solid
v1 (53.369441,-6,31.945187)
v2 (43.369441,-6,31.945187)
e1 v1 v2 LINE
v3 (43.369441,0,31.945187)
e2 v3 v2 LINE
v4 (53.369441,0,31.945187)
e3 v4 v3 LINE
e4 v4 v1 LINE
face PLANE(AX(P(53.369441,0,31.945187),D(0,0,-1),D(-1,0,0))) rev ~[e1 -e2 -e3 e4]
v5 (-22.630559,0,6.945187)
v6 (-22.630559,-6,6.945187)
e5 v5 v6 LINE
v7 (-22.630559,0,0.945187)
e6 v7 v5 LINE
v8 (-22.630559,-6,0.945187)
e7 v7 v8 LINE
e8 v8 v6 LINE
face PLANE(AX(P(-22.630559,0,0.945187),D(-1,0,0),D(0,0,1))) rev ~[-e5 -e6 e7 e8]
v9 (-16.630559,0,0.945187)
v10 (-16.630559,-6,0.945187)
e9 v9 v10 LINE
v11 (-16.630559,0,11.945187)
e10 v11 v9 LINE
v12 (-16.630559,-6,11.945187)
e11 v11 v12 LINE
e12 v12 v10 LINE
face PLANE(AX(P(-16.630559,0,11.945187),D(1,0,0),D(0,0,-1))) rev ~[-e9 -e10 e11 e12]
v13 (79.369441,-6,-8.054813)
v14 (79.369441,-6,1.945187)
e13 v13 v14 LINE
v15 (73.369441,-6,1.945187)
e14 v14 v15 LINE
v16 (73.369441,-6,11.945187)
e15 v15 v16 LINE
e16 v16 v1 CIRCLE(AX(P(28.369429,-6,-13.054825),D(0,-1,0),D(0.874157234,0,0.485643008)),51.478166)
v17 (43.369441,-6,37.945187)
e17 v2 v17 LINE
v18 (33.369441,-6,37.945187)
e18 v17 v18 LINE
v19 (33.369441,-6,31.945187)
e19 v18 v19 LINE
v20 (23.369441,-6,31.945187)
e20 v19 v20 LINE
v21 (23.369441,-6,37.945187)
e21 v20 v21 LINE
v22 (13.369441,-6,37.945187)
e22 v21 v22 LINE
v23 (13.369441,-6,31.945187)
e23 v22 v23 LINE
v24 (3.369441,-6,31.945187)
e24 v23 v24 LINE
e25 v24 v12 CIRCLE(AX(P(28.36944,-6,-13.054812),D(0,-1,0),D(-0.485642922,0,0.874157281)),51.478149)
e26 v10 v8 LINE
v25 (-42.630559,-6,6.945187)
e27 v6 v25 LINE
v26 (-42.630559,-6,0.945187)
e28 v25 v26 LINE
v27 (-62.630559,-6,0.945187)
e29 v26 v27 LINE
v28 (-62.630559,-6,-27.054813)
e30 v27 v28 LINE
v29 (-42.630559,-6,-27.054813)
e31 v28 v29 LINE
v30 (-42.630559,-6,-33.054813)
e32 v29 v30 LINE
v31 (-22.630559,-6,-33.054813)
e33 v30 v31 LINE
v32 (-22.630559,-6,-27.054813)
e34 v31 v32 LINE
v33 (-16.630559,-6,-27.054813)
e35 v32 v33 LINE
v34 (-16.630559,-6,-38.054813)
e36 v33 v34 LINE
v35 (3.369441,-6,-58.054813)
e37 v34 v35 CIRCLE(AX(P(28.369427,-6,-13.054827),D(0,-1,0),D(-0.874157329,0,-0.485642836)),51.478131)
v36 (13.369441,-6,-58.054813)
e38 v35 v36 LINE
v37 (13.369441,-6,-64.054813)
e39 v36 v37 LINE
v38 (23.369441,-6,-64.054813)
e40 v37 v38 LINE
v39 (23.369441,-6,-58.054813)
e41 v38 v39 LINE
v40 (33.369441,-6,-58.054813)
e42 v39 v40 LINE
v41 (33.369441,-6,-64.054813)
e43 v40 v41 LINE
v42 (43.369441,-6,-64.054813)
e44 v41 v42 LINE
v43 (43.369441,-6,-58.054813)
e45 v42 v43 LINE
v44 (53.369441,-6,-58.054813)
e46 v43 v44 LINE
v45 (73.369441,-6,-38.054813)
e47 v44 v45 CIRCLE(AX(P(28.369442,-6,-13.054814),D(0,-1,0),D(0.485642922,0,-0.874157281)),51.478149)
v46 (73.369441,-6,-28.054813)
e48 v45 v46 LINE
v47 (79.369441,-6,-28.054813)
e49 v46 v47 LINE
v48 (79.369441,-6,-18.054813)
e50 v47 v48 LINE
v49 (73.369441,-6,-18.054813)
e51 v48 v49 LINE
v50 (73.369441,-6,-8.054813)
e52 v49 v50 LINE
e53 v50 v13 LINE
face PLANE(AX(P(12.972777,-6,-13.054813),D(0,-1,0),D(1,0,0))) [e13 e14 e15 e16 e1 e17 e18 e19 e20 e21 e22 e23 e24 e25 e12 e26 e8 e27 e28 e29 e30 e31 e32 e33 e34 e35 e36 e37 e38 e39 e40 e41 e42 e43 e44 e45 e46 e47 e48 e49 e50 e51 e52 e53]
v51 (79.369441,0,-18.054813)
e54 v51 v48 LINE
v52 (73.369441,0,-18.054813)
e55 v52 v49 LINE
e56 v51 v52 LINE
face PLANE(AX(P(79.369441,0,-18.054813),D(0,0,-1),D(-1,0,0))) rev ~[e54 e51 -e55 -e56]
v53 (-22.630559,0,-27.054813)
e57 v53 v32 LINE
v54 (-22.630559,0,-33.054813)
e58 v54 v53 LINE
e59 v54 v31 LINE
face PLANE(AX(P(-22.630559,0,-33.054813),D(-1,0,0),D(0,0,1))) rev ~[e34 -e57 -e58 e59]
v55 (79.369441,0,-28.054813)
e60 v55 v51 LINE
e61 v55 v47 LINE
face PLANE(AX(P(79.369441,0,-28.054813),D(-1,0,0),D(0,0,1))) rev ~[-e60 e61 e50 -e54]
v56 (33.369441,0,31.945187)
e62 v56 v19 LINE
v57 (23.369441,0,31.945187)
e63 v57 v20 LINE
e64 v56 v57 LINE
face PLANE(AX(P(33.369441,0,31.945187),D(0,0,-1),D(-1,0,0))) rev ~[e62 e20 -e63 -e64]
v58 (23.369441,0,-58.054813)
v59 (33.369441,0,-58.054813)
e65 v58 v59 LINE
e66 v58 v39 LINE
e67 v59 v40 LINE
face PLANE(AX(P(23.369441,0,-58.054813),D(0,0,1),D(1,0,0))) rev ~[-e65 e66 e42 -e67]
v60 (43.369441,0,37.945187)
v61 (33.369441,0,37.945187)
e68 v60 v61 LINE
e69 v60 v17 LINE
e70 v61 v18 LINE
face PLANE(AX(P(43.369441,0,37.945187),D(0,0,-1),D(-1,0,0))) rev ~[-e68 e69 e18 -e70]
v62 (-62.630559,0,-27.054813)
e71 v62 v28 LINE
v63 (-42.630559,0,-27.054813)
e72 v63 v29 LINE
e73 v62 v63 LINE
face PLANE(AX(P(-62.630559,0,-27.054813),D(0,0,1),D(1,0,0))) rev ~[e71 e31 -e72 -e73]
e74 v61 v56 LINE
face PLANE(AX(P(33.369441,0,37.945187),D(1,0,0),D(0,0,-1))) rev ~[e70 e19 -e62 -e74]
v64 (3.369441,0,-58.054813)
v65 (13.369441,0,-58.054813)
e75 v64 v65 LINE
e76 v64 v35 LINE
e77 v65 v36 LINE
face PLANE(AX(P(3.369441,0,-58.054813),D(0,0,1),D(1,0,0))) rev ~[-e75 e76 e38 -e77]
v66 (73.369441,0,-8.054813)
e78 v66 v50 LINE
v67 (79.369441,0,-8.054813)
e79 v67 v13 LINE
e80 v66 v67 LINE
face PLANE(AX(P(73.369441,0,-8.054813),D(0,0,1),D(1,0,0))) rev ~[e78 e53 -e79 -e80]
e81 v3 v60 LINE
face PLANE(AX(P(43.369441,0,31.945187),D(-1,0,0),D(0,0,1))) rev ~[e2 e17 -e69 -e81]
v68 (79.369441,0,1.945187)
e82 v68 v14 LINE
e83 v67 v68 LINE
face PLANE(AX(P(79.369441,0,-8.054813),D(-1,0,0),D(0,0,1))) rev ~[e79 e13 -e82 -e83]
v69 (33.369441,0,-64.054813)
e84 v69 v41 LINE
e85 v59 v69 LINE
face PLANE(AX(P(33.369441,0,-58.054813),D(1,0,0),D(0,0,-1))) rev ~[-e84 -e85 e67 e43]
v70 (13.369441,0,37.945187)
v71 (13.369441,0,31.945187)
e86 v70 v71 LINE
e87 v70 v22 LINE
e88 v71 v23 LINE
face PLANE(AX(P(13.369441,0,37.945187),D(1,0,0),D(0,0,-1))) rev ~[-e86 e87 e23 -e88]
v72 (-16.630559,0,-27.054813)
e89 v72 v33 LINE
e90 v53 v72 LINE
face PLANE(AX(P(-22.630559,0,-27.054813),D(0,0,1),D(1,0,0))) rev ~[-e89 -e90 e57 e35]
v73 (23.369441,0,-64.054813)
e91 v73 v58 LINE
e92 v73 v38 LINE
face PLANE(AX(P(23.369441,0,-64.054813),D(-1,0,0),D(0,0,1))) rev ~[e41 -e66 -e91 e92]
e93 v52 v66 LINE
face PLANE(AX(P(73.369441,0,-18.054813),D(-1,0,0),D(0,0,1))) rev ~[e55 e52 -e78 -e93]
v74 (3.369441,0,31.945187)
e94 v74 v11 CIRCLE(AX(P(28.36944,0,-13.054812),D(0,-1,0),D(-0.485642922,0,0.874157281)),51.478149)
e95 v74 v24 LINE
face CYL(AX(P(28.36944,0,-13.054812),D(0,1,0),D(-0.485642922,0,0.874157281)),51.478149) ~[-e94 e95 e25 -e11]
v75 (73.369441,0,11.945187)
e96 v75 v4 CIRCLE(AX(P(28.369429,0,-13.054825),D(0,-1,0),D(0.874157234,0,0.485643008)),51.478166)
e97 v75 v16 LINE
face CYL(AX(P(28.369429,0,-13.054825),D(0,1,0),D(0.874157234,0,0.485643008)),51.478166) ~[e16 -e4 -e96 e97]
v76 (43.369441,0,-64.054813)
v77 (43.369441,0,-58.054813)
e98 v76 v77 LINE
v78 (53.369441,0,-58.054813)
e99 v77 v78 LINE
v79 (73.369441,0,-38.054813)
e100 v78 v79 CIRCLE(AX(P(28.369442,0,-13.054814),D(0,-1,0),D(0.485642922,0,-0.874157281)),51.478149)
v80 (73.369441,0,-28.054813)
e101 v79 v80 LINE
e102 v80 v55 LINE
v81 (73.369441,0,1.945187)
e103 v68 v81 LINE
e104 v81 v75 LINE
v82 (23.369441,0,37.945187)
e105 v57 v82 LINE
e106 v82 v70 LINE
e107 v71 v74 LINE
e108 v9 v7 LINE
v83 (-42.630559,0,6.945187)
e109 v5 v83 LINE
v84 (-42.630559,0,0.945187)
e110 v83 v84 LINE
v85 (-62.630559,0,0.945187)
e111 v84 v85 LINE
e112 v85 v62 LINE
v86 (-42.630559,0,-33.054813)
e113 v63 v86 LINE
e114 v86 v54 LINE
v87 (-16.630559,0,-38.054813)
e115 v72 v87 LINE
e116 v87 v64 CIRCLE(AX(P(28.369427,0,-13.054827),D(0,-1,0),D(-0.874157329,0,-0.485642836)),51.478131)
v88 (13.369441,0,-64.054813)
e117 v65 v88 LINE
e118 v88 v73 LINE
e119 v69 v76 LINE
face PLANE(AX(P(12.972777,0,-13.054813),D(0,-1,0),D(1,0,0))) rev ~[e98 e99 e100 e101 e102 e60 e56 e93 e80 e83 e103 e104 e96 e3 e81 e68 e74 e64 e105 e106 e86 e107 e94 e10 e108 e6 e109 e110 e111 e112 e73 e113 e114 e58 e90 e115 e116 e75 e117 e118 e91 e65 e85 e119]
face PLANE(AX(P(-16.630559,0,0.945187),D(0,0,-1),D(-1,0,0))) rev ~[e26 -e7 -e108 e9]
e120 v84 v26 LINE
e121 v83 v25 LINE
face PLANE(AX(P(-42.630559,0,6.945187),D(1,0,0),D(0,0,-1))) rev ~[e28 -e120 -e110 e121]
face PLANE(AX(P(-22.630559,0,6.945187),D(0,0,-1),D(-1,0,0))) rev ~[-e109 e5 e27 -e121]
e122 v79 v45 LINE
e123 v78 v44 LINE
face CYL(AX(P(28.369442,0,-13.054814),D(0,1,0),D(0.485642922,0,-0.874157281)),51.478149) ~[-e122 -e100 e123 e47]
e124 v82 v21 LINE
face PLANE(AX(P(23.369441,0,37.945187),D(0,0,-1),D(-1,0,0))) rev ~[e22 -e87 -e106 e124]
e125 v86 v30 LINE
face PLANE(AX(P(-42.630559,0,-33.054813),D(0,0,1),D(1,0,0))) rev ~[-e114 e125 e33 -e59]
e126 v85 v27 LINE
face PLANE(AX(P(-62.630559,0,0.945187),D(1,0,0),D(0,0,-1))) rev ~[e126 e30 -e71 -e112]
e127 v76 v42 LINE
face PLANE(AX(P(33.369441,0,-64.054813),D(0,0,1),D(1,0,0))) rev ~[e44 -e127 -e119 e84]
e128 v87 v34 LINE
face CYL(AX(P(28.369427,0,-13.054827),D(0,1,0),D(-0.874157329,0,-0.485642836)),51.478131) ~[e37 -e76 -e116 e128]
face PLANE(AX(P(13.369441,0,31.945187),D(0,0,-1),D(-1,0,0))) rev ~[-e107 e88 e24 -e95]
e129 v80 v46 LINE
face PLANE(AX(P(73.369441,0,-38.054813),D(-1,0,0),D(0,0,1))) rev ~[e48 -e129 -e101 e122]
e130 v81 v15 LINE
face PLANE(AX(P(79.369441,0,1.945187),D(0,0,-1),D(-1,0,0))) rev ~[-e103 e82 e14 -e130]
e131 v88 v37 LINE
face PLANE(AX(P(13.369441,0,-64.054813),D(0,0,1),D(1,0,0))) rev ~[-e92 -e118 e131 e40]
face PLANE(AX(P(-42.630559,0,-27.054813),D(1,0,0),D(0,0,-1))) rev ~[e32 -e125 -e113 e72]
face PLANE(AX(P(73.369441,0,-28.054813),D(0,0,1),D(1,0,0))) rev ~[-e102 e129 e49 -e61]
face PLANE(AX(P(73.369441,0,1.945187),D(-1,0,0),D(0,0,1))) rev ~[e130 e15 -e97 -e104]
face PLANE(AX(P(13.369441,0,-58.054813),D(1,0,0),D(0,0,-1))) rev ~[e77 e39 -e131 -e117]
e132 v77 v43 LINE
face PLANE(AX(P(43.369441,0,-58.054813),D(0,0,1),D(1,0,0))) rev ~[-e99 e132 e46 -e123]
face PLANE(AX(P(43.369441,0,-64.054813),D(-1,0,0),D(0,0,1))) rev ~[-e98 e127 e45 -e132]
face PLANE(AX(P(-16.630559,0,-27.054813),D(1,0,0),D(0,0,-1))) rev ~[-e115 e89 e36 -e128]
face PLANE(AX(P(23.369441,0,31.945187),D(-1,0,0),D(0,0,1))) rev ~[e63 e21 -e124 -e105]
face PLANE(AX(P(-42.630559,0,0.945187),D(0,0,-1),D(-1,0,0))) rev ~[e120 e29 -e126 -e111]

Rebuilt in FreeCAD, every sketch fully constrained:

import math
import FreeCAD as App
import Part
import Sketcher

V = App.Vector
Q = App.Units.Quantity

doc = App.newDocument("Part")
body = doc.addObject("PartDesign::Body", "Body")

sketch1 = body.newObject("Sketcher::SketchObject", "Sketch")
sketch1.AttachmentSupport = (doc.getObject("XZ_Plane"), [""])
sketch1.MapMode = "FlatFace"
sketch1.addGeometry(Part.LineSegment(V(43.369441, -58.054813, 0), V(53.369441, -58.054813, 0)), False)
sketch1.addGeometry(Part.ArcOfCircle(Part.Circle(V(28.369442, -13.054814, 0), V(0, 0, 1), 51.478149), math.radians(-60.945397), math.radians(-29.054603)), False)
sketch1.addGeometry(Part.LineSegment(V(73.369441, -38.054813, 0), V(73.369441, -28.054813, 0)), False)
sketch1.addGeometry(Part.LineSegment(V(73.369441, -28.054813, 0), V(79.369441, -28.054813, 0)), False)
sketch1.addGeometry(Part.LineSegment(V(79.369441, -28.054813, 0), V(79.369441, -18.054813, 0)), False)
sketch1.addGeometry(Part.LineSegment(V(79.369441, -18.054813, 0), V(73.369441, -18.054813, 0)), False)
sketch1.addGeometry(Part.LineSegment(V(73.369441, -18.054813, 0), V(73.369441, -8.054813, 0)), False)
sketch1.addGeometry(Part.LineSegment(V(73.369441, -8.054813, 0), V(79.369441, -8.054813, 0)), False)
sketch1.addGeometry(Part.LineSegment(V(79.369441, -8.054813, 0), V(79.369441, 1.945187, 0)), False)
sketch1.addGeometry(Part.LineSegment(V(79.369441, 1.945187, 0), V(73.369441, 1.945187, 0)), False)
sketch1.addGeometry(Part.LineSegment(V(73.369441, 1.945187, 0), V(73.369441, 11.945187, 0)), False)
sketch1.addGeometry(Part.ArcOfCircle(Part.Circle(V(28.369429, -13.054825, 0), V(0, 0, 1), 51.478166), math.radians(29.054609), math.radians(60.945391)), False)
sketch1.addGeometry(Part.LineSegment(V(53.369441, 31.945187, 0), V(43.369441, 31.945187, 0)), False)
sketch1.addGeometry(Part.LineSegment(V(43.369441, 31.945187, 0), V(43.369441, 37.945187, 0)), False)
sketch1.addGeometry(Part.LineSegment(V(43.369441, 37.945187, 0), V(33.369441, 37.945187, 0)), False)
sketch1.addGeometry(Part.LineSegment(V(33.369441, 37.945187, 0), V(33.369441, 31.945187, 0)), False)
sketch1.addGeometry(Part.LineSegment(V(33.369441, 31.945187, 0), V(23.369441, 31.945187, 0)), False)
sketch1.addGeometry(Part.LineSegment(V(23.369441, 31.945187, 0), V(23.369441, 37.945187, 0)), False)
sketch1.addGeometry(Part.LineSegment(V(23.369441, 37.945187, 0), V(13.369441, 37.945187, 0)), False)
sketch1.addGeometry(Part.LineSegment(V(13.369441, 37.945187, 0), V(13.369441, 31.945187, 0)), False)
sketch1.addGeometry(Part.LineSegment(V(13.369441, 31.945187, 0), V(3.369441, 31.945187, 0)), False)
sketch1.addGeometry(Part.ArcOfCircle(Part.Circle(V(28.36944, -13.054812, 0), V(0, 0, 1), 51.478149), math.radians(119.054603), math.radians(150.945397)), False)
sketch1.addGeometry(Part.LineSegment(V(-16.630559, 11.945187, 0), V(-16.630559, 0.945187, 0)), False)
sketch1.addGeometry(Part.LineSegment(V(-16.630559, 0.945187, 0), V(-22.630559, 0.945187, 0)), False)
sketch1.addGeometry(Part.LineSegment(V(-22.630559, 0.945187, 0), V(-22.630559, 6.945187, 0)), False)
sketch1.addGeometry(Part.LineSegment(V(-22.630559, 6.945187, 0), V(-42.630559, 6.945187, 0)), False)
sketch1.addGeometry(Part.LineSegment(V(-42.630559, 6.945187, 0), V(-42.630559, 0.945187, 0)), False)
sketch1.addGeometry(Part.LineSegment(V(-42.630559, 0.945187, 0), V(-62.630559, 0.945187, 0)), False)
sketch1.addGeometry(Part.LineSegment(V(-62.630559, 0.945187, 0), V(-62.630559, -27.054813, 0)), False)
sketch1.addGeometry(Part.LineSegment(V(-62.630559, -27.054813, 0), V(-42.630559, -27.054813, 0)), False)
sketch1.addGeometry(Part.LineSegment(V(-42.630559, -27.054813, 0), V(-42.630559, -33.054813, 0)), False)
sketch1.addGeometry(Part.LineSegment(V(-42.630559, -33.054813, 0), V(-22.630559, -33.054813, 0)), False)
sketch1.addGeometry(Part.LineSegment(V(-22.630559, -33.054813, 0), V(-22.630559, -27.054813, 0)), False)
sketch1.addGeometry(Part.LineSegment(V(-22.630559, -27.054813, 0), V(-16.630559, -27.054813, 0)), False)
sketch1.addGeometry(Part.LineSegment(V(-16.630559, -27.054813, 0), V(-16.630559, -38.054813, 0)), False)
sketch1.addGeometry(Part.ArcOfCircle(Part.Circle(V(28.369427, -13.054827, 0), V(0, 0, 1), 51.478131), math.radians(-150.945402), math.radians(-119.054598)), False)
sketch1.addGeometry(Part.LineSegment(V(3.369441, -58.054813, 0), V(13.369441, -58.054813, 0)), False)
sketch1.addGeometry(Part.LineSegment(V(13.369441, -58.054813, 0), V(13.369441, -64.054813, 0)), False)
sketch1.addGeometry(Part.LineSegment(V(13.369441, -64.054813, 0), V(23.369441, -64.054813, 0)), False)
sketch1.addGeometry(Part.LineSegment(V(23.369441, -64.054813, 0), V(23.369441, -58.054813, 0)), False)
sketch1.addGeometry(Part.LineSegment(V(23.369441, -58.054813, 0), V(33.369441, -58.054813, 0)), False)
sketch1.addGeometry(Part.LineSegment(V(33.369441, -58.054813, 0), V(33.369441, -64.054813, 0)), False)
sketch1.addGeometry(Part.LineSegment(V(33.369441, -64.054813, 0), V(43.369441, -64.054813, 0)), False)
sketch1.addGeometry(Part.LineSegment(V(43.369441, -64.054813, 0), V(43.369441, -58.054813, 0)), False)
sketch1.addConstraint(Sketcher.Constraint("Coincident", 0, 2, 1, 1))
sketch1.addConstraint(Sketcher.Constraint("Coincident", 1, 2, 2, 1))
sketch1.addConstraint(Sketcher.Constraint("Coincident", 2, 2, 3, 1))
sketch1.addConstraint(Sketcher.Constraint("Coincident", 3, 2, 4, 1))
sketch1.addConstraint(Sketcher.Constraint("Coincident", 4, 2, 5, 1))
sketch1.addConstraint(Sketcher.Constraint("Coincident", 5, 2, 6, 1))
sketch1.addConstraint(Sketcher.Constraint("Coincident", 6, 2, 7, 1))
sketch1.addConstraint(Sketcher.Constraint("Coincident", 7, 2, 8, 1))
sketch1.addConstraint(Sketcher.Constraint("Coincident", 8, 2, 9, 1))
sketch1.addConstraint(Sketcher.Constraint("Coincident", 9, 2, 10, 1))
sketch1.addConstraint(Sketcher.Constraint("Coincident", 10, 2, 11, 1))
sketch1.addConstraint(Sketcher.Constraint("Coincident", 11, 2, 12, 1))
sketch1.addConstraint(Sketcher.Constraint("Coincident", 12, 2, 13, 1))
sketch1.addConstraint(Sketcher.Constraint("Coincident", 13, 2, 14, 1))
sketch1.addConstraint(Sketcher.Constraint("Coincident", 14, 2, 15, 1))
sketch1.addConstraint(Sketcher.Constraint("Coincident", 15, 2, 16, 1))
sketch1.addConstraint(Sketcher.Constraint("Coincident", 16, 2, 17, 1))
sketch1.addConstraint(Sketcher.Constraint("Coincident", 17, 2, 18, 1))
sketch1.addConstraint(Sketcher.Constraint("Coincident", 18, 2, 19, 1))
sketch1.addConstraint(Sketcher.Constraint("Coincident", 19, 2, 20, 1))
sketch1.addConstraint(Sketcher.Constraint("Coincident", 20, 2, 21, 1))
sketch1.addConstraint(Sketcher.Constraint("Coincident", 21, 2, 22, 1))
sketch1.addConstraint(Sketcher.Constraint("Coincident", 22, 2, 23, 1))
sketch1.addConstraint(Sketcher.Constraint("Coincident", 23, 2, 24, 1))
sketch1.addConstraint(Sketcher.Constraint("Coincident", 24, 2, 25, 1))
sketch1.addConstraint(Sketcher.Constraint("Coincident", 25, 2, 26, 1))
sketch1.addConstraint(Sketcher.Constraint("Coincident", 26, 2, 27, 1))
sketch1.addConstraint(Sketcher.Constraint("Coincident", 27, 2, 28, 1))
sketch1.addConstraint(Sketcher.Constraint("Coincident", 28, 2, 29, 1))
sketch1.addConstraint(Sketcher.Constraint("Coincident", 29, 2, 30, 1))
sketch1.addConstraint(Sketcher.Constraint("Coincident", 30, 2, 31, 1))
sketch1.addConstraint(Sketcher.Constraint("Coincident", 31, 2, 32, 1))
sketch1.addConstraint(Sketcher.Constraint("Coincident", 32, 2, 33, 1))
sketch1.addConstraint(Sketcher.Constraint("Coincident", 33, 2, 34, 1))
sketch1.addConstraint(Sketcher.Constraint("Coincident", 34, 2, 35, 1))
sketch1.addConstraint(Sketcher.Constraint("Coincident", 35, 2, 36, 1))
sketch1.addConstraint(Sketcher.Constraint("Coincident", 36, 2, 37, 1))
sketch1.addConstraint(Sketcher.Constraint("Coincident", 37, 2, 38, 1))
sketch1.addConstraint(Sketcher.Constraint("Coincident", 38, 2, 39, 1))
sketch1.addConstraint(Sketcher.Constraint("Coincident", 39, 2, 40, 1))
sketch1.addConstraint(Sketcher.Constraint("Coincident", 40, 2, 41, 1))
sketch1.addConstraint(Sketcher.Constraint("Coincident", 41, 2, 42, 1))
sketch1.addConstraint(Sketcher.Constraint("Coincident", 42, 2, 43, 1))
sketch1.addConstraint(Sketcher.Constraint("Coincident", 43, 2, 0, 1))
sketch1.addConstraint(Sketcher.Constraint("Horizontal", 0))
sketch1.addConstraint(Sketcher.Constraint("Vertical", 2))
sketch1.addConstraint(Sketcher.Constraint("Horizontal", 3))
sketch1.addConstraint(Sketcher.Constraint("Vertical", 4))
sketch1.addConstraint(Sketcher.Constraint("Horizontal", 5))
sketch1.addConstraint(Sketcher.Constraint("Vertical", 6))
sketch1.addConstraint(Sketcher.Constraint("Horizontal", 7))
sketch1.addConstraint(Sketcher.Constraint("Vertical", 8))
sketch1.addConstraint(Sketcher.Constraint("Horizontal", 9))
sketch1.addConstraint(Sketcher.Constraint("Vertical", 10))
sketch1.addConstraint(Sketcher.Constraint("Horizontal", 12))
sketch1.addConstraint(Sketcher.Constraint("Vertical", 13))
sketch1.addConstraint(Sketcher.Constraint("Horizontal", 14))
sketch1.addConstraint(Sketcher.Constraint("Vertical", 15))
sketch1.addConstraint(Sketcher.Constraint("Horizontal", 16))
sketch1.addConstraint(Sketcher.Constraint("Vertical", 17))
sketch1.addConstraint(Sketcher.Constraint("Horizontal", 18))
sketch1.addConstraint(Sketcher.Constraint("Vertical", 19))
sketch1.addConstraint(Sketcher.Constraint("Horizontal", 20))
sketch1.addConstraint(Sketcher.Constraint("Vertical", 22))
sketch1.addConstraint(Sketcher.Constraint("Horizontal", 23))
sketch1.addConstraint(Sketcher.Constraint("Vertical", 24))
sketch1.addConstraint(Sketcher.Constraint("Horizontal", 25))
sketch1.addConstraint(Sketcher.Constraint("Vertical", 26))
sketch1.addConstraint(Sketcher.Constraint("Horizontal", 27))
sketch1.addConstraint(Sketcher.Constraint("Vertical", 28))
sketch1.addConstraint(Sketcher.Constraint("Horizontal", 29))
sketch1.addConstraint(Sketcher.Constraint("Vertical", 30))
sketch1.addConstraint(Sketcher.Constraint("Horizontal", 31))
sketch1.addConstraint(Sketcher.Constraint("Vertical", 32))
sketch1.addConstraint(Sketcher.Constraint("Horizontal", 33))
sketch1.addConstraint(Sketcher.Constraint("Vertical", 34))
sketch1.addConstraint(Sketcher.Constraint("Horizontal", 36))
sketch1.addConstraint(Sketcher.Constraint("Vertical", 37))
sketch1.addConstraint(Sketcher.Constraint("Horizontal", 38))
sketch1.addConstraint(Sketcher.Constraint("Vertical", 39))
sketch1.addConstraint(Sketcher.Constraint("Horizontal", 40))
sketch1.addConstraint(Sketcher.Constraint("Vertical", 41))
sketch1.addConstraint(Sketcher.Constraint("Horizontal", 42))
sketch1.addConstraint(Sketcher.Constraint("Vertical", 43))
sketch1.addConstraint(Sketcher.Constraint("Coincident", 21, 3, 1, 3))
sketch1.addConstraint(Sketcher.Constraint("Coincident", 35, 3, 11, 3))
sketch1.addConstraint(Sketcher.Constraint("Equal", 1, 21))
sketch1.addConstraint(Sketcher.Constraint("Horizontal", 12, 2, 15, 2))
sketch1.addConstraint(Sketcher.Constraint("Horizontal", 14, 2, 17, 2))
sketch1.addConstraint(Sketcher.Constraint("Horizontal", 16, 2, 19, 2))
sketch1.addConstraint(Sketcher.Constraint("Horizontal", 10, 2, 21, 2))
sketch1.addConstraint(Sketcher.Constraint("Horizontal", 23, 2, 26, 2))
sketch1.addConstraint(Sketcher.Constraint("Horizontal", 29, 2, 32, 2))
sketch1.addConstraint(Sketcher.Constraint("Horizontal", 1, 2, 34, 2))
sketch1.addConstraint(Sketcher.Constraint("Horizontal", 0, 2, 35, 2))
sketch1.addConstraint(Sketcher.Constraint("Horizontal", 36, 2, 39, 2))
sketch1.addConstraint(Sketcher.Constraint("Horizontal", 38, 2, 41, 2))
sketch1.addConstraint(Sketcher.Constraint("Vertical", 2, 2, 5, 2))
sketch1.addConstraint(Sketcher.Constraint("Vertical", 4, 2, 7, 2))
sketch1.addConstraint(Sketcher.Constraint("Vertical", 6, 2, 9, 2))
sketch1.addConstraint(Sketcher.Constraint("Vertical", 0, 2, 11, 2))
sketch1.addConstraint(Sketcher.Constraint("Vertical", 26, 2, 29, 2))
sketch1.addConstraint(Sketcher.Constraint("Vertical", 24, 2, 31, 2))
sketch1.addConstraint(Sketcher.Constraint("Vertical", 22, 2, 33, 2))
sketch1.addConstraint(Sketcher.Constraint("Vertical", 19, 2, 36, 2))
sketch1.addConstraint(Sketcher.Constraint("Vertical", 17, 2, 38, 2))
sketch1.addConstraint(Sketcher.Constraint("Vertical", 15, 2, 40, 2))
sketch1.addConstraint(Sketcher.Constraint("Vertical", 13, 2, 42, 2))
sketch1.addConstraint(Sketcher.Constraint("Equal", 12, 14))
sketch1.addConstraint(Sketcher.Constraint("Equal", 14, 16))
sketch1.addConstraint(Sketcher.Constraint("Equal", 16, 18))
sketch1.addConstraint(Sketcher.Constraint("Equal", 18, 20))
sketch1.addConstraint(Sketcher.Constraint("Equal", 9, 23))
sketch1.addConstraint(Sketcher.Constraint("Equal", 25, 27))
sketch1.addConstraint(Sketcher.Constraint("Equal", 42, 2))
sketch1.addConstraint(Sketcher.Constraint("Equal", 2, 4))
sketch1.addConstraint(Sketcher.Constraint("Equal", 4, 6))
sketch1.addConstraint(Sketcher.Constraint("Equal", 6, 8))
sketch1.addConstraint(Sketcher.Constraint("Equal", 8, 10))
sketch1.addConstraint(Sketcher.Constraint("Equal", 33, 13))
sketch1.addConstraint(Sketcher.Constraint("Equal", 19, 24))
sketch1.addConstraint(Sketcher.Constraint("Equal", 26, 30))
sketch1.addConstraint(Sketcher.Constraint("Equal", 22, 34))
sketch1.addConstraint(Sketcher.Constraint("Equal", 32, 37))
sketch1.addConstraint(Sketcher.Constraint("DistanceX", 0, 1, 0, 2, Q("10 mm")))
sketch1.addConstraint(Sketcher.Constraint("DistanceX", 3, 1, 3, 2, Q("6 mm")))
sketch1.addConstraint(Sketcher.Constraint("DistanceX", 25, 2, 25, 1, Q("20 mm")))
sketch1.addConstraint(Sketcher.Constraint("DistanceY", 22, 2, 22, 1, Q("11 mm")))
sketch1.addConstraint(Sketcher.Constraint("DistanceX", 1, 3, 0, 2, Q("24.999999 mm")))
sketch1.addConstraint(Sketcher.Constraint("DistanceY", 0, 2, 1, 3, Q("44.999999 mm")))
sketch1.addConstraint(Sketcher.Constraint("DistanceX", 0, 2, 1, 2, Q("20 mm")))
sketch1.addConstraint(Sketcher.Constraint("Radius", 35, Q("51.478131 mm")))
sketch1.addConstraint(Sketcher.Constraint("DistanceX", -1, 1, 11, 3, Q("28.369429 mm")))
sketch1.addConstraint(Sketcher.Constraint("DistanceY", 21, 3, -1, 1, Q("13.054812 mm")))
pad1 = body.newObject("PartDesign::Pad", "Pad")
pad1.Profile = sketch1
pad1.Length = 6

doc.recompute()
